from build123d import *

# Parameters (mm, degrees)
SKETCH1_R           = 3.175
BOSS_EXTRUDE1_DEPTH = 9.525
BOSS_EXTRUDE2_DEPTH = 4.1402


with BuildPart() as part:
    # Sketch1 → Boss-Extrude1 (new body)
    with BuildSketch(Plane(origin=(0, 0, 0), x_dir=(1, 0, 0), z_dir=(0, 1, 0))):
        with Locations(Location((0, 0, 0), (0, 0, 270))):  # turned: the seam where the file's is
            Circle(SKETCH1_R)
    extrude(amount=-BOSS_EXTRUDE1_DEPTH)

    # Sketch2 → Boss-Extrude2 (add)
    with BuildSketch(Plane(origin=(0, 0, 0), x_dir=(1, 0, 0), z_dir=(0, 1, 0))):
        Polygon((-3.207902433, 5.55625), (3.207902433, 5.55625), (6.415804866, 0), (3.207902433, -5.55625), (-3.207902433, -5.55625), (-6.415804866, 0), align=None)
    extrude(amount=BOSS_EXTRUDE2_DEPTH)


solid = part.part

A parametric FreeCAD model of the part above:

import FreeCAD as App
import Part
import Sketcher
from FreeCAD import Vector
Q = App.Units.Quantity


def add_polygon(sketch, points):
    """Adds a closed chain of lines whose ends are joined by coincident constraints."""
    first, n = sketch.GeometryCount, len(points)
    for a, b in zip(points, points[1:] + points[:1]):
        sketch.addGeometry(Part.LineSegment(App.Vector(*a, 0), App.Vector(*b, 0)), False)
    for i in range(n):
        sketch.addConstraint(Sketcher.Constraint("Coincident", first + i, 2, first + (i + 1) % n, 1))

doc = App.newDocument("Part")
body = doc.addObject("PartDesign::Body", "Body")

# Sketch on XZ plane
sketch1 = doc.addObject("Sketcher::SketchObject", "Sketch")
body.addObject(sketch1)
sketch1.AttachmentSupport = (doc.XZ_Plane, [""])
sketch1.MapMode = "FlatFace"
sketch1.addGeometry(Part.Circle(Vector(0, 0, 0), Vector(0, 0, 1), 3.2), False)
sketch1.addConstraint([
    Sketcher.Constraint("Coincident", 0, 3, -1, 1),
    Sketcher.Constraint("Diameter", 0, Q("0.25 in")),
])
pad1 = doc.addObject("PartDesign::Pad", "Pad")
body.addObject(pad1)
pad1.Profile = sketch1
pad1.Length = Q("0.375 in")

# Sketch on XZ plane
sketch2 = doc.addObject("Sketcher::SketchObject", "Sketch001")
body.addObject(sketch2)
sketch2.AttachmentSupport = (doc.XZ_Plane, [""])
sketch2.MapMode = "FlatFace"
add_polygon(sketch2, [(3, -6), (-3, -6), (-6, 0), (-3, 6), (3, 6), (6, 0)])  # lines 0-5
sketch2.addConstraint([
    Sketcher.Constraint("Horizontal", 0),
    Sketcher.Constraint("Horizontal", 3),
    Sketcher.Constraint("Symmetric", 0, 2, 3, 2, -1, 1),
    Sketcher.Constraint("Symmetric", 1, 2, 4, 2, -1, 1),
    Sketcher.Constraint("PointOnObject", 1, 2, -1),
    Sketcher.Constraint("Parallel", 2, 5),
    Sketcher.Constraint("Vertical", 0, 2, 2, 2),
    Sketcher.Constraint("Angle", 1, Q("120 deg")),
    Sketcher.Constraint("DistanceY", 0, 2, -1, 1, Q("0.21875 in")),
    Sketcher.Constraint("DistanceX", 0, 2, 0, 1, 6.415805),
])
pad2 = doc.addObject("PartDesign::Pad", "Pad001")
body.addObject(pad2)
pad2.Profile = sketch2
pad2.Length = Q("0.163 in")
pad2.Reversed = True

doc.recompute()
